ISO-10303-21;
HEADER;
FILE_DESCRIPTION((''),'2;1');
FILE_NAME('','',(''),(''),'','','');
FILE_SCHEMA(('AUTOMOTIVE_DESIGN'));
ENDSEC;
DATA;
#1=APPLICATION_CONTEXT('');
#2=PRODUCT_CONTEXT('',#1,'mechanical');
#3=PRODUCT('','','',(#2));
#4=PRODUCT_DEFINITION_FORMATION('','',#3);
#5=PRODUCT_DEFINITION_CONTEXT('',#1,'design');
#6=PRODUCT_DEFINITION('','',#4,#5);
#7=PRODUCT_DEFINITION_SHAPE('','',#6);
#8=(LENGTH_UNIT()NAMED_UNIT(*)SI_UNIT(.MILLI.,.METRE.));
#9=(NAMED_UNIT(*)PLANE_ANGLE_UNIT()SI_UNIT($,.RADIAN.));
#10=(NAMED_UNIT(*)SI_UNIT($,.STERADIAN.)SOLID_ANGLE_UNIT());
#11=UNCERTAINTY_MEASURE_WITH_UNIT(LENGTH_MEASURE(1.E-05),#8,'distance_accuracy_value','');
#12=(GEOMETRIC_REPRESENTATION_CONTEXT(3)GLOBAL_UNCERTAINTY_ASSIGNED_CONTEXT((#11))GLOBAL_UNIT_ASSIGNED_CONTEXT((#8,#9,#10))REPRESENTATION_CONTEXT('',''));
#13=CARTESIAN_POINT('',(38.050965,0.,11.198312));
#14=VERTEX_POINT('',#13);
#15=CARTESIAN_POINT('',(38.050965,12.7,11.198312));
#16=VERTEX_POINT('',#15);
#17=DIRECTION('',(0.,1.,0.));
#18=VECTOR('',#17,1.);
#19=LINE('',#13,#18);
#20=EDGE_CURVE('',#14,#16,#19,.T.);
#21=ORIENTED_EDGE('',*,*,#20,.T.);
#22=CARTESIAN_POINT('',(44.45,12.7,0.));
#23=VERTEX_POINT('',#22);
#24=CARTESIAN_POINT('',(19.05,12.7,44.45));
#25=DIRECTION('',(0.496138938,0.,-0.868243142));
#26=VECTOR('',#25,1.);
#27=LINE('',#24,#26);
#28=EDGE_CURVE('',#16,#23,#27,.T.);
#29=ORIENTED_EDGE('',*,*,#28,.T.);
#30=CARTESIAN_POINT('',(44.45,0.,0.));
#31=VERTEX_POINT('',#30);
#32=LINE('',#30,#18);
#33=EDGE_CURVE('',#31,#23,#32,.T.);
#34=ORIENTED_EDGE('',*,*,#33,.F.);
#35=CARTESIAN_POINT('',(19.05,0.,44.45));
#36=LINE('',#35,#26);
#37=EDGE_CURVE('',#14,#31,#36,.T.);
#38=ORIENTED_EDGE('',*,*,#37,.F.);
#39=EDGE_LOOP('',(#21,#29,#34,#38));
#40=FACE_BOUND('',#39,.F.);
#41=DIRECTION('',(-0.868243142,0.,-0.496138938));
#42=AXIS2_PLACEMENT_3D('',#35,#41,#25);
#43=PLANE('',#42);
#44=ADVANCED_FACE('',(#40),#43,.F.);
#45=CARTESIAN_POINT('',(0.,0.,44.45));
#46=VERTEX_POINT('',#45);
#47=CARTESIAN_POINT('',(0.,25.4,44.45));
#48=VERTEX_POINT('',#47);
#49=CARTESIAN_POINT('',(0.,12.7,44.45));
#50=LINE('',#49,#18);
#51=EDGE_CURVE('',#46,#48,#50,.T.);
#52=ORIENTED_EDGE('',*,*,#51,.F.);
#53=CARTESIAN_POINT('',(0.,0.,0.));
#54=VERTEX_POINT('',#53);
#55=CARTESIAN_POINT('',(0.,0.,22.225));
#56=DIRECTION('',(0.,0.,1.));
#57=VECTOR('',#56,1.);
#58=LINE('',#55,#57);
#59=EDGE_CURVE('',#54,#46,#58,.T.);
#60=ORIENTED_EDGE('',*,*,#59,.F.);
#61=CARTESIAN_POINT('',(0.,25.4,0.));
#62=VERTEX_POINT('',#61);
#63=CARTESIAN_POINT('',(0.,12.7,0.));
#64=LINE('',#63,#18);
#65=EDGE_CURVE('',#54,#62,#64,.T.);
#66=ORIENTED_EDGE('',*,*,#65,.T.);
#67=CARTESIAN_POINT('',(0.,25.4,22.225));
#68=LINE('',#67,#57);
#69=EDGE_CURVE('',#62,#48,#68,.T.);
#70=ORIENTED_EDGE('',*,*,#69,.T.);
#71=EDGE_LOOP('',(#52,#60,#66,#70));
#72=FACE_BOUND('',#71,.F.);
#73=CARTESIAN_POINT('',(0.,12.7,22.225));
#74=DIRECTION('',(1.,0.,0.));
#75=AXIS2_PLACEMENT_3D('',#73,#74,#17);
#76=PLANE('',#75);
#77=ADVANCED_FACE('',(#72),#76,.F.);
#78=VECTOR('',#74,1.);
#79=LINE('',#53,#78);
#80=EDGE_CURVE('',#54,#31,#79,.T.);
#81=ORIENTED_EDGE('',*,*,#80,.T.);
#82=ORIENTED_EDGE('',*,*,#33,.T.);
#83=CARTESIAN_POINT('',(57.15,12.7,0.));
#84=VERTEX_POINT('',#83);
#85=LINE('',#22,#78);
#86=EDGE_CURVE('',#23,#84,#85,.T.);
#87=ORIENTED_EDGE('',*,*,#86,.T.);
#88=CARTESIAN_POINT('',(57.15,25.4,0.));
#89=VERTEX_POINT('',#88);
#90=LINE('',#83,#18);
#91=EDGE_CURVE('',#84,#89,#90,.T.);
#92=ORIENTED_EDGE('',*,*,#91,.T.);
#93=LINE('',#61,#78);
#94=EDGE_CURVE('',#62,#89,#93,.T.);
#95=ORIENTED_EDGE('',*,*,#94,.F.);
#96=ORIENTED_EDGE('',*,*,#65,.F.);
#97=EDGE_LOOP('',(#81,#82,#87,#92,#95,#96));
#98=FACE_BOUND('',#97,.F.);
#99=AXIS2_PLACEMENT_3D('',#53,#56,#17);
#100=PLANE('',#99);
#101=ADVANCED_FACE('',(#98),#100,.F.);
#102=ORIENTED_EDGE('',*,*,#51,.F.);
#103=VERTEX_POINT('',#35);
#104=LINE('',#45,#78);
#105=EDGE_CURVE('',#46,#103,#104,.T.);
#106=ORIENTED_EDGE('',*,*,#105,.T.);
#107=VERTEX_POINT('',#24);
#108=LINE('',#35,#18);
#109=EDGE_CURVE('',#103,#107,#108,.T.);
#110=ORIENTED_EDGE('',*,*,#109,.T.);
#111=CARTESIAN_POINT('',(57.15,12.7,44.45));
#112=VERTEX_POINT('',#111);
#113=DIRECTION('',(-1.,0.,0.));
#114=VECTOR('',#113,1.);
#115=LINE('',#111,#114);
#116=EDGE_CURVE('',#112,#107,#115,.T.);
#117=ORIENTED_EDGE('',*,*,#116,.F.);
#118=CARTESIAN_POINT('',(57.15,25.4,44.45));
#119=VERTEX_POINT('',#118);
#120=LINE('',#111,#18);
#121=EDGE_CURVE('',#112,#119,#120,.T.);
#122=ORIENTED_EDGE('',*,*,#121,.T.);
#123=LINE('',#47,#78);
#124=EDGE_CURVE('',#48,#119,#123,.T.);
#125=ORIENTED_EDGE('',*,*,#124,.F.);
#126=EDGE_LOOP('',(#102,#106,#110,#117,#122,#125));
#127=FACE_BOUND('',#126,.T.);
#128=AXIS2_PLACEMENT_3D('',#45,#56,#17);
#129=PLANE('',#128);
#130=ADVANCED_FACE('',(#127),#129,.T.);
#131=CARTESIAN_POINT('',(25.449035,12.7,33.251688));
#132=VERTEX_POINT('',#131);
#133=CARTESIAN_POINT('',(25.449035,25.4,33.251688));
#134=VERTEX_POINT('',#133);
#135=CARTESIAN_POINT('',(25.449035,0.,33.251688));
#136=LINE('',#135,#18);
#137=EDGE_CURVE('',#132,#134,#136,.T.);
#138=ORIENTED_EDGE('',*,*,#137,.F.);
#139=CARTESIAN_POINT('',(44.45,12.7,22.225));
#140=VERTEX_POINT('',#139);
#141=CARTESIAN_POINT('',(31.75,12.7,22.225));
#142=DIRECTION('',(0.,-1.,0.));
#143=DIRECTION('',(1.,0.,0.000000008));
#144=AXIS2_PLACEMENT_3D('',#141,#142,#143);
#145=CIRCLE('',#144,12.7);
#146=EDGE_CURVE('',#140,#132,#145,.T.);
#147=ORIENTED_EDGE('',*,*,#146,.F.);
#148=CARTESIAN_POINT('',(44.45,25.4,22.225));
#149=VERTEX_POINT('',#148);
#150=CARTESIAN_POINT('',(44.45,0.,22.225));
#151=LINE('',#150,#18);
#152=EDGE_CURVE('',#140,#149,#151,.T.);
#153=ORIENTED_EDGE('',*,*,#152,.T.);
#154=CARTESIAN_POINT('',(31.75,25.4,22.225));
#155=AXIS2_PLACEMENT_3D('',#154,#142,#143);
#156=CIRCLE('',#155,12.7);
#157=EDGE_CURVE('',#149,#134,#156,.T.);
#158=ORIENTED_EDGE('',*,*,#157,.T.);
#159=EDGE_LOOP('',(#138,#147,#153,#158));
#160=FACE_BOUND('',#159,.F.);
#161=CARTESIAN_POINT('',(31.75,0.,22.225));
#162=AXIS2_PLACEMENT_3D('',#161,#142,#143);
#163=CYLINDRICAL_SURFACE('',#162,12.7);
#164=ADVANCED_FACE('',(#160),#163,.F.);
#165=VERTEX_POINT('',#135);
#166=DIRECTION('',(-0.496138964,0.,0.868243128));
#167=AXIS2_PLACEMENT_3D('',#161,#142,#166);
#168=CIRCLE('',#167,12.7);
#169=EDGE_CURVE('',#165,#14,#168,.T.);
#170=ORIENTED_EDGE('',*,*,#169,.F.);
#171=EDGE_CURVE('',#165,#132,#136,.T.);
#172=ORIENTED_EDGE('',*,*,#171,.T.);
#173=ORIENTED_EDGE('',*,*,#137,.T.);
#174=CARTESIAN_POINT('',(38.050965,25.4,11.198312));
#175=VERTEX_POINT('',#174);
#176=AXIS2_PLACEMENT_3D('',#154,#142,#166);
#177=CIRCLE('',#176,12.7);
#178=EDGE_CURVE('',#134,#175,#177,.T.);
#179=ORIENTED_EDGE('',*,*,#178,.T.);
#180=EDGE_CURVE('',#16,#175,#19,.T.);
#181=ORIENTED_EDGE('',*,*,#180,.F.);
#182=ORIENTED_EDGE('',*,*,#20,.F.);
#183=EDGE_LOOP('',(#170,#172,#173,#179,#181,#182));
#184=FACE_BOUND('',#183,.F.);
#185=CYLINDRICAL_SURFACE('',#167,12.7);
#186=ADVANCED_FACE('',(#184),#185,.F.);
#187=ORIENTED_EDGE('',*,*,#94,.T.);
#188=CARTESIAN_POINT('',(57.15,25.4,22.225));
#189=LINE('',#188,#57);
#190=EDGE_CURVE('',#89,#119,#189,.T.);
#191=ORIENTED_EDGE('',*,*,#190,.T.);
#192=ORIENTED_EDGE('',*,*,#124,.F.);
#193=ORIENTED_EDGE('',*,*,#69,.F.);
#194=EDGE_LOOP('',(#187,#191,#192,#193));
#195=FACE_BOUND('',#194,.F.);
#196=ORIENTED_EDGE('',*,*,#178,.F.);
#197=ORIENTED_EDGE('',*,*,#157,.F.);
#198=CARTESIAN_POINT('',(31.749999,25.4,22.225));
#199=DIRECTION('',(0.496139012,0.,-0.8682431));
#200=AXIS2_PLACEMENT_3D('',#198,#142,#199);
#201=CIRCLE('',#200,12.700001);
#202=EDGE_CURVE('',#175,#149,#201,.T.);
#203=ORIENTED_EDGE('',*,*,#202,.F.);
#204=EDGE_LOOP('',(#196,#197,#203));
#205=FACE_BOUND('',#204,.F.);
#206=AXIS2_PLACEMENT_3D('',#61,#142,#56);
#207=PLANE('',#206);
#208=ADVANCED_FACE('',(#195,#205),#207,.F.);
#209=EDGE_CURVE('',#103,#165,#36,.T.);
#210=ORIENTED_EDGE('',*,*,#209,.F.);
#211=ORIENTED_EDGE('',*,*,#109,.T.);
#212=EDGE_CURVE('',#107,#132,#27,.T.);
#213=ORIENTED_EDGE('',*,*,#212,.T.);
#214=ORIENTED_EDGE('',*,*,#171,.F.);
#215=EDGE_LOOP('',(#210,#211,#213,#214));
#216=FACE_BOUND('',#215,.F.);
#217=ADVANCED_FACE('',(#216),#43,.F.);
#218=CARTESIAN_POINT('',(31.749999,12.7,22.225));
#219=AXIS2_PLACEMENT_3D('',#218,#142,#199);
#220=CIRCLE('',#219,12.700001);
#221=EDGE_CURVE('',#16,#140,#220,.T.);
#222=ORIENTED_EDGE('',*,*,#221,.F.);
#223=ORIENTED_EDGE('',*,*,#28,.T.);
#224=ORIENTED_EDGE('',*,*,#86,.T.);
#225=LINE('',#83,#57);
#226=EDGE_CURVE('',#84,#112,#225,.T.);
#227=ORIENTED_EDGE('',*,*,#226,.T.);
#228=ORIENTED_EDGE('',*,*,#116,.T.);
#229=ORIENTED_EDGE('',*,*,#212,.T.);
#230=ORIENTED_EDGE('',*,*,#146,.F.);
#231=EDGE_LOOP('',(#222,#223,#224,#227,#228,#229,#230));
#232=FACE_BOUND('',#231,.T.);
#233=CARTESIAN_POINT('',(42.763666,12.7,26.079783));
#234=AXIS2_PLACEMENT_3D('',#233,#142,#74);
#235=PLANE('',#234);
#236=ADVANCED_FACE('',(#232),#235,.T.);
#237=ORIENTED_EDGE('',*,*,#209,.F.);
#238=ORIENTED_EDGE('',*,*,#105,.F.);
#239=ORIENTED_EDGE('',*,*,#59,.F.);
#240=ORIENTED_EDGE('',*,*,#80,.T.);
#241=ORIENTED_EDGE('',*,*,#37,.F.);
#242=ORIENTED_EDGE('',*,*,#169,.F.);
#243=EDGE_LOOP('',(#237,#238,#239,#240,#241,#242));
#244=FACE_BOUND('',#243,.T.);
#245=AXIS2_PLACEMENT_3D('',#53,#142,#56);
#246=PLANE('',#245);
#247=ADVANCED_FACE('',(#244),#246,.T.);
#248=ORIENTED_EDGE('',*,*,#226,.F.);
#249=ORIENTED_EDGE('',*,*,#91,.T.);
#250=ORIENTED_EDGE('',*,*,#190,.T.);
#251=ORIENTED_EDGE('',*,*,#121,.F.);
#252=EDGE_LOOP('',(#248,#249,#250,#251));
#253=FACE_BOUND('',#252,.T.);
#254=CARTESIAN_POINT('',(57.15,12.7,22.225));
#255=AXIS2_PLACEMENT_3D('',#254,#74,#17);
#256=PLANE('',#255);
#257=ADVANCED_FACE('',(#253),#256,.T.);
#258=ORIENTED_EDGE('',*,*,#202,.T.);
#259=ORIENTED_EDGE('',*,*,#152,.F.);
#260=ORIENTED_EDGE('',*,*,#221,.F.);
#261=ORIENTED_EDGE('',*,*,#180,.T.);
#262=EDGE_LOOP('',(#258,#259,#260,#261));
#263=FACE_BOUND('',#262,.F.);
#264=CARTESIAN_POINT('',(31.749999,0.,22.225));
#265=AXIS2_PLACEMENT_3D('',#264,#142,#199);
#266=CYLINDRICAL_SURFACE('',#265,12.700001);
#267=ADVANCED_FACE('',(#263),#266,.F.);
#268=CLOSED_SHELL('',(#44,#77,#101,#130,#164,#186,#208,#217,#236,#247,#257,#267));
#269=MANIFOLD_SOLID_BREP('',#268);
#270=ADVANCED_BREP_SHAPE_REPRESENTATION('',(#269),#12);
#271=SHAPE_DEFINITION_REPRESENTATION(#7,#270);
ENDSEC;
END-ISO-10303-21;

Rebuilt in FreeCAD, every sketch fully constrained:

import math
import FreeCAD as App
import Part
import Sketcher
Q = App.Units.Quantity

doc = App.newDocument("Part")
body = doc.addObject("PartDesign::Body", "Body")

sketch1 = doc.addObject("Sketcher::SketchObject", "Sketch")
body.addObject(sketch1)
sketch1.AttachmentSupport = (doc.YZ_Plane, [""])
sketch1.MapMode = "FlatFace"
sketch1.addGeometry([
    Part.LineSegment(App.Vector(0, 44, 0), App.Vector(0, 0, 0)),
    Part.LineSegment(App.Vector(0, 0, 0), App.Vector(25, 0, 0)),
    Part.LineSegment(App.Vector(25, 0, 0), App.Vector(25, 44, 0)),
    Part.LineSegment(App.Vector(25, 44, 0), App.Vector(0, 44, 0)),
], False)
sketch1.addConstraint([
    Sketcher.Constraint("Coincident", 0, 2, 1, 1),
    Sketcher.Constraint("Coincident", 1, 2, 2, 1),
    Sketcher.Constraint("Coincident", 2, 2, 3, 1),
    Sketcher.Constraint("Coincident", 3, 2, 0, 1),
    Sketcher.Constraint("Vertical", 0),
    Sketcher.Constraint("Horizontal", 1),
    Sketcher.Constraint("Vertical", 2),
    Sketcher.Constraint("Horizontal", 3),
    Sketcher.Constraint("Coincident", 0, 2, -1, 1),
    Sketcher.Constraint("DistanceX", 1, 1, 1, 2, Q("1 in")),
    Sketcher.Constraint("DistanceY", 0, 2, 0, 1, Q("1.75 in")),
])
pad1 = doc.addObject("PartDesign::Pad", "Pad")
body.addObject(pad1)
pad1.Profile = sketch1
pad1.Length = Q("2.25 in")

sketch2 = doc.addObject("Sketcher::SketchObject", "Sketch001")
body.addObject(sketch2)
sketch2.AttachmentSupport = (doc.XZ_Plane, [""])
sketch2.MapMode = "FlatFace"
sketch2.addGeometry([
    Part.LineSegment(App.Vector(57, 44, 0), App.Vector(19, 44, 0)),
    Part.LineSegment(App.Vector(19, 44, 0), App.Vector(44, 0, 0)),
    Part.LineSegment(App.Vector(44, 0, 0), App.Vector(57, 0, 0)),
    Part.LineSegment(App.Vector(57, 0, 0), App.Vector(57, 44, 0)),
], False)
sketch2.addConstraint([
    Sketcher.Constraint("Coincident", 0, 2, 1, 1),
    Sketcher.Constraint("Coincident", 1, 2, 2, 1),
    Sketcher.Constraint("Coincident", 2, 2, 3, 1),
    Sketcher.Constraint("Coincident", 3, 2, 0, 1),
    Sketcher.Constraint("Horizontal", 0),
    Sketcher.Constraint("Horizontal", 2),
    Sketcher.Constraint("Vertical", 3),
    Sketcher.Constraint("PointOnObject", 1, 2, -1),
    Sketcher.Constraint("DistanceX", 0, 2, 0, 1, Q("1.5 in")),
    Sketcher.Constraint("DistanceX", 2, 1, 2, 2, Q("0.5 in")),
    Sketcher.Constraint("DistanceY", 3, 1, 3, 2, Q("1.75 in")),
    Sketcher.Constraint("DistanceX", -1, 1, 0, 2, Q("0.75 in")),
])
pocket1 = doc.addObject("PartDesign::Pocket", "Pocket")
body.addObject(pocket1)
pocket1.Profile = sketch2
pocket1.Length = Q("0.5 in")

sketch3 = doc.addObject("Sketcher::SketchObject", "Sketch002")
body.addObject(sketch3)
sketch3.AttachmentSupport = (doc.XZ_Plane, [""])
sketch3.MapMode = "FlatFace"
sketch3.addGeometry([
    Part.ArcOfCircle(Part.Circle(App.Vector(32, 22, 0), App.Vector(0, 0, 1), 13), math.radians(-60), math.radians(0)),
    Part.ArcOfCircle(Part.Circle(App.Vector(32, 22, 0), App.Vector(0, 0, 1), 13), math.radians(0), math.radians(120)),
    Part.ArcOfCircle(Part.Circle(App.Vector(32, 22, 0), App.Vector(0, 0, 1), 13), math.radians(120), math.radians(300)),
], False)
sketch3.addConstraint([
    Sketcher.Constraint("Tangent", 0, 2, 1, 1),
    Sketcher.Constraint("Tangent", 1, 2, 2, 1),
    Sketcher.Constraint("Tangent", 2, 2, 0, 1),
    Sketcher.Constraint("Horizontal", 2, 3, 0, 2),
    Sketcher.Constraint("Radius", 0, Q("0.5 in")),
    Sketcher.Constraint("DistanceX", -1, 1, 0, 3, Q("1.25 in")),
    Sketcher.Constraint("DistanceY", -1, 1, 0, 3, Q("0.875 in")),
    Sketcher.Constraint("DistanceY", -1, 1, 1, 2, 33.251688),
    Sketcher.Constraint("DistanceY", 2, 2, 0, 3, 11.026688),
])
pocket2 = doc.addObject("PartDesign::Pocket", "Pocket001")
body.addObject(pocket2)
pocket2.Profile = sketch3
pocket2.Length = Q("1 in")

doc.recompute()
